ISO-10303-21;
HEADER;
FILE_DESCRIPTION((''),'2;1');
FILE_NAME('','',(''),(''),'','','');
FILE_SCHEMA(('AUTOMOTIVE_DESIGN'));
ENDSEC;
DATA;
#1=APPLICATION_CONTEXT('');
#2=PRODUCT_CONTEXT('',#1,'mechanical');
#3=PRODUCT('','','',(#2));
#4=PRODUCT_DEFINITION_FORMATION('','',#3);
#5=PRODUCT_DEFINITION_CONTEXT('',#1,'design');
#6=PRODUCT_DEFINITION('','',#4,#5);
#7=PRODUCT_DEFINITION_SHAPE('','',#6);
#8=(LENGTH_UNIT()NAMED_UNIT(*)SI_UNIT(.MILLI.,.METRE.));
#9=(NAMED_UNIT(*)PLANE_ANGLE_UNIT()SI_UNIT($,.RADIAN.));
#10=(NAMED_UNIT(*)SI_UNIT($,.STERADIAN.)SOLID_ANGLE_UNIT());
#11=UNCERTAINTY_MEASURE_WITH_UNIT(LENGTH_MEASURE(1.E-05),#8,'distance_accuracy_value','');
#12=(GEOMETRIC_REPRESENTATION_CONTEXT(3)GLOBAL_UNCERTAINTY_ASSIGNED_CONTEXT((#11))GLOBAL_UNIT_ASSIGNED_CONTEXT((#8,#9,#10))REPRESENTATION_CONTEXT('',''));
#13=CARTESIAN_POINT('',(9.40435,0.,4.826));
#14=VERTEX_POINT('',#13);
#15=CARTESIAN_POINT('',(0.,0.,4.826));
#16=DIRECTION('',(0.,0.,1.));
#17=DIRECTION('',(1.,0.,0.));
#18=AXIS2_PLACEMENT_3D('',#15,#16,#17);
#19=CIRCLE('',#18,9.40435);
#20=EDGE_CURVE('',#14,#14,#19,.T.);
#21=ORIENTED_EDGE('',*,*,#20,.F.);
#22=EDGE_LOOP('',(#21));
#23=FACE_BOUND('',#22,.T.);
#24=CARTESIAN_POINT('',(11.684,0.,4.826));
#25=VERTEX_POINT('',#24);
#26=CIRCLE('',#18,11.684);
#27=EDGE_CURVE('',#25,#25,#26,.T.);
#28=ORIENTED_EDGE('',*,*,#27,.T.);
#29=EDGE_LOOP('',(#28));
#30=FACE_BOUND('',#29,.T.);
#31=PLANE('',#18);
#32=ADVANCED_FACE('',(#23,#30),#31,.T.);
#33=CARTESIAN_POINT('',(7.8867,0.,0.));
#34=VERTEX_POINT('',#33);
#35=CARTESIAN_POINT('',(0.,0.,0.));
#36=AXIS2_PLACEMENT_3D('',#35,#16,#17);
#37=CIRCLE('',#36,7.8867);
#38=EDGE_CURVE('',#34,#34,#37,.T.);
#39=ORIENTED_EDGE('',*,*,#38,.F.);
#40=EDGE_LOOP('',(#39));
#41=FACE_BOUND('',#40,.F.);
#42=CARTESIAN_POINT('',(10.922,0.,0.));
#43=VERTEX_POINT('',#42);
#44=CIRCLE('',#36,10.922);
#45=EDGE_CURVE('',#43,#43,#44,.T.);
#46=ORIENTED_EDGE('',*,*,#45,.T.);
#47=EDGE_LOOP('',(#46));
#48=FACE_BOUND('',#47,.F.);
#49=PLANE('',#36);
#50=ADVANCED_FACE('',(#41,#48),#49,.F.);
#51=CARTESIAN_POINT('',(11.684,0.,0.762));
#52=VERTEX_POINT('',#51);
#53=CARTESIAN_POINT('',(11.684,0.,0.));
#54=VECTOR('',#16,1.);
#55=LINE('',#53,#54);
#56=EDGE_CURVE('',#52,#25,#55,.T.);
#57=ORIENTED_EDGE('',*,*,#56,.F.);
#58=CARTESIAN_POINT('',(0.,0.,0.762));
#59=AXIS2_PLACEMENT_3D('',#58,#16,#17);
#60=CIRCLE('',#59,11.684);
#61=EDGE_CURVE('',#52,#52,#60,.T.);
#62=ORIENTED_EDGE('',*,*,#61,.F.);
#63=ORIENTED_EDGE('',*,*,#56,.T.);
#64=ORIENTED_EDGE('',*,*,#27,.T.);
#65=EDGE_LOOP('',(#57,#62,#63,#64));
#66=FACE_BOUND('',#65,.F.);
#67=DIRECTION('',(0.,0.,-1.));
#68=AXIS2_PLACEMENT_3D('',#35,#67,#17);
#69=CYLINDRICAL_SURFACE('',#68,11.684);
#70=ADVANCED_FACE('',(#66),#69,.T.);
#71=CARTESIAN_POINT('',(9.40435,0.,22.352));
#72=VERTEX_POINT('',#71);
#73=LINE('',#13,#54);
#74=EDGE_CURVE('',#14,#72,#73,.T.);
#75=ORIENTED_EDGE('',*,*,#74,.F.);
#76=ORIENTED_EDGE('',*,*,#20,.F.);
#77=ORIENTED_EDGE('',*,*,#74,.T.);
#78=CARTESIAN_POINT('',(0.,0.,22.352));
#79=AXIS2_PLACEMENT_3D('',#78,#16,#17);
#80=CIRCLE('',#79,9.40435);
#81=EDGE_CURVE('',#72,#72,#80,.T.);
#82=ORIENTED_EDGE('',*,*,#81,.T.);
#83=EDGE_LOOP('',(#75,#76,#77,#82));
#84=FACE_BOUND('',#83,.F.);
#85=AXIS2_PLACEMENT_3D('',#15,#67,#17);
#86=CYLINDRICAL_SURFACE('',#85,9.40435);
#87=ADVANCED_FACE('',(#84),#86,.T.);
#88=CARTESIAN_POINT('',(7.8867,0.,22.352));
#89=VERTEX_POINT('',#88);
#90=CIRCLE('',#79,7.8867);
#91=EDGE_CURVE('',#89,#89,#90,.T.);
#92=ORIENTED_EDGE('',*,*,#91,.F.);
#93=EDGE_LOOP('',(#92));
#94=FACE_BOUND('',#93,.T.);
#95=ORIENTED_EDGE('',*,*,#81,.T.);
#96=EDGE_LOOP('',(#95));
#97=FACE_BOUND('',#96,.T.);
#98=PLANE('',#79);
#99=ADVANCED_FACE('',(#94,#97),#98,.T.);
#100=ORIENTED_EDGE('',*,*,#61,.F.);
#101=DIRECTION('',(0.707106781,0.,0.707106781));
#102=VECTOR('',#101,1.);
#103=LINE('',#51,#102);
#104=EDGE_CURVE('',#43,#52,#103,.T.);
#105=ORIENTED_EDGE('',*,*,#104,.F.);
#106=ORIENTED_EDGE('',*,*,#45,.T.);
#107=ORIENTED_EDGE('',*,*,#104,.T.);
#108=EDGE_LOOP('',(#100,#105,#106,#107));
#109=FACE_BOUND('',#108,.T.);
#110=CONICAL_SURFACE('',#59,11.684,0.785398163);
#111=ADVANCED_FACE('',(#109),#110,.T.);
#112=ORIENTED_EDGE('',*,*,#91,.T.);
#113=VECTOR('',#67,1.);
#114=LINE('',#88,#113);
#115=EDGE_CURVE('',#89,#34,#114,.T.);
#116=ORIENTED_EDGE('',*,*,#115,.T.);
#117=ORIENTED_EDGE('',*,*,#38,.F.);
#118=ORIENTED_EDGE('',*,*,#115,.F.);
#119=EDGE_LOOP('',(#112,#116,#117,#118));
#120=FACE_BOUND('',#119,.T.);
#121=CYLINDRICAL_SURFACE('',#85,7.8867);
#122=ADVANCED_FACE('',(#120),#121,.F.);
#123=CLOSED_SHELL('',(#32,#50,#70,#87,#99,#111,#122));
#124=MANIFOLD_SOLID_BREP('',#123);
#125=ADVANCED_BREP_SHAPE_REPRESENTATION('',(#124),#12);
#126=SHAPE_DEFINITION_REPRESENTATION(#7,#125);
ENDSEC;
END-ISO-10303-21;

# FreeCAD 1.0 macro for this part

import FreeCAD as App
import Part
import Sketcher
Q = App.Units.Quantity


def edges_at(feature, points):
    """Names of the edges that pass closest to the given points."""
    edges = feature.Shape.Edges
    near = lambda p: min(range(len(edges)), key=lambda i: edges[i].distToShape(Part.Vertex(*p))[0])
    return sorted({f"Edge{near(p) + 1}" for p in points})

doc = App.newDocument("Part")
params = doc.addObject("Spreadsheet::Sheet", "Params")
for row, (alias, value) in enumerate([
    ("sketch1_diameter", "0.92 in"),
    ("sketch1_diameter2", "0.621 in"),
    ("pad1_length", "0.19 in"),
    ("sketch2_diameter", "0.621 in"),
    ("pad2_length", "0.69 in"),
    ("chamfer_size", "0.03 in"),
    ("chamfer_size2", "0.03 in"),
], start=1):
    params.set(f"A{row}", alias)
    params.set(f"B{row}", "=" + value)
    params.setAlias(f"B{row}", alias)

body = doc.addObject("PartDesign::Body", "Body")

sketch1 = body.newObject("Sketcher::SketchObject", "Sketch")
sketch1.AttachmentSupport = (doc.getObject("XY_Plane"), [""])
sketch1.MapMode = "FlatFace"
sketch1.addGeometry([
    Part.Circle(App.Vector(0, 0, 0), App.Vector(0, 0, 1), 11.684),
    Part.Circle(App.Vector(0, 0, 0), App.Vector(0, 0, 1), 7.8867),
], False)
sketch1.addConstraint([
    Sketcher.Constraint("Coincident", 0, 3, -1, 1),
    Sketcher.Constraint("Coincident", 1, 3, -1, 1),
    Sketcher.Constraint("Diameter", 0, Q("0.92 in")),
    Sketcher.Constraint("Diameter", 1, Q("0.621 in")),
])
sketch1.setExpression("Constraints[2]", "Params.sketch1_diameter")
sketch1.setExpression("Constraints[3]", "Params.sketch1_diameter2")
pad1 = body.newObject("PartDesign::Pad", "Pad")
pad1.Profile = sketch1
pad1.setExpression("Length", "Params.pad1_length")

sketch2 = body.newObject("Sketcher::SketchObject", "Sketch001")
sketch2.AttachmentSupport = (doc.getObject("XY_Plane"), [""])
sketch2.MapMode = "FlatFace"
sketch2.AttachmentOffset = App.Placement(App.Vector(0, 0, 0.19 * 25.4), App.Rotation())
sketch2.addGeometry([
    Part.Circle(App.Vector(0, 0, 0), App.Vector(0, 0, 1), 9.40435),
    Part.Circle(App.Vector(0, 0, 0), App.Vector(0, 0, 1), 7.8867),
], False)
sketch2.addConstraint([
    Sketcher.Constraint("Coincident", 0, 3, -1, 1),
    Sketcher.Constraint("Coincident", 1, 3, -1, 1),
    Sketcher.Constraint("Diameter", 1, Q("0.621 in")),
    Sketcher.Constraint("Diameter", 0, Q("0.7405 in")),
])
sketch2.setExpression("Constraints[2]", "Params.sketch2_diameter")
pad2 = body.newObject("PartDesign::Pad", "Pad001")
pad2.Profile = sketch2
pad2.setExpression("Length", "Params.pad2_length")
doc.recompute()

chamfer = body.newObject("PartDesign::Chamfer", "Chamfer")
chamfer.Base = (pad2, edges_at(pad2, [(-11.684, 0, 0)]))
chamfer.ChamferType = "Two distances"
chamfer.setExpression("Size", "Params.chamfer_size")
chamfer.setExpression("Size2", "Params.chamfer_size2")

doc.recompute()
